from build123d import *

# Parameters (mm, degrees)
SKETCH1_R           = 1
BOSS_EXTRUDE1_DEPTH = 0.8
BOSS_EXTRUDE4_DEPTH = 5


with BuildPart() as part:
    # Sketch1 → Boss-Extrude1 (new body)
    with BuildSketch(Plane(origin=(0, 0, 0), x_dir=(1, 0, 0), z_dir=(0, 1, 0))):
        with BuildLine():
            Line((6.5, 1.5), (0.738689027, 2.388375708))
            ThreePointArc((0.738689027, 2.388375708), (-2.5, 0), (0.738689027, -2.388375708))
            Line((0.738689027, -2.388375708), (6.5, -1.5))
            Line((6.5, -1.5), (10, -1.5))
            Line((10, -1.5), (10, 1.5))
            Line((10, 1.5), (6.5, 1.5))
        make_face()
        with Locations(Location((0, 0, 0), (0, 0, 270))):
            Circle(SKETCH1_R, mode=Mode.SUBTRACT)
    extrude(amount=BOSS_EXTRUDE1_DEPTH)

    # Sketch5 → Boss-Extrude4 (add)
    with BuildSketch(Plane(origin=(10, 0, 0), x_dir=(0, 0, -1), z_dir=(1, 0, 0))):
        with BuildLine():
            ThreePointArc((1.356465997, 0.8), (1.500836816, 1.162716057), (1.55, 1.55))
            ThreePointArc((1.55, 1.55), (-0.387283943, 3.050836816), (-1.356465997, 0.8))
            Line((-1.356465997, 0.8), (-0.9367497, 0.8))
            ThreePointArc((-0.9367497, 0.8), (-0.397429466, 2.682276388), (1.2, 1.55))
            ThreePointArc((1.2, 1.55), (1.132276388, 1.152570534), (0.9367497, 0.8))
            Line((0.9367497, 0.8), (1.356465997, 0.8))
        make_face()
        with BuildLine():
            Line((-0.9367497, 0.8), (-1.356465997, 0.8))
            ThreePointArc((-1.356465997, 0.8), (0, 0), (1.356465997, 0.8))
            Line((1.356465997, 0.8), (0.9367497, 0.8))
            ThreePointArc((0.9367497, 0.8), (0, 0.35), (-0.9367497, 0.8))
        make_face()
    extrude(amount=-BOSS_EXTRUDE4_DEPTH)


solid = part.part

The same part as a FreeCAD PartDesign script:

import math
import FreeCAD as App
import Part
import Sketcher
from FreeCAD import Vector
Q = App.Units.Quantity

doc = App.newDocument("Part")
body = doc.addObject("PartDesign::Body", "Body")

# Sketch on XZ plane
sketch1 = body.newObject("Sketcher::SketchObject", "Sketch")
sketch1.AttachmentSupport = (doc.getObject("XZ_Plane"), [""])
sketch1.MapMode = "FlatFace"
sketch1.addGeometry([
    Part.LineSegment(Vector(6.5, -1.5, 0), Vector(0.7, -2.4, 0)),  # 0
    Part.ArcOfCircle(Part.Circle(Vector(0, 0, 0), Vector(0, 0, 1), 2.5), math.radians(73), math.radians(287)),  # 1
    Part.LineSegment(Vector(0.7, 2.4, 0), Vector(6.5, 1.5, 0)),  # 2
    Part.LineSegment(Vector(6.5, 1.5, 0), Vector(10, 1.5, 0)),  # 3
    Part.LineSegment(Vector(10, 1.5, 0), Vector(10, -1.5, 0)),  # 4
    Part.LineSegment(Vector(10, -1.5, 0), Vector(6.5, -1.5, 0)),  # 5
    Part.Circle(Vector(0, 0, 0), Vector(0, 0, 1), 1),  # 6
], False)
sketch1.addConstraint([
    Sketcher.Constraint("Coincident", 0, 2, 1, 2),
    Sketcher.Constraint("Coincident", 1, 1, 2, 1),
    Sketcher.Constraint("Coincident", 2, 2, 3, 1),
    Sketcher.Constraint("Coincident", 3, 2, 4, 1),
    Sketcher.Constraint("Coincident", 4, 2, 5, 1),
    Sketcher.Constraint("Coincident", 5, 2, 0, 1),
    Sketcher.Constraint("Horizontal", 3),
    Sketcher.Constraint("Vertical", 4),
    Sketcher.Constraint("Horizontal", 5),
    Sketcher.Constraint("Coincident", 1, 3, -1, 1),
    Sketcher.Constraint("Coincident", 6, 3, -1, 1),
    Sketcher.Constraint("Symmetric", 2, 2, 5, 2, -1),
    Sketcher.Constraint("Vertical", 0, 2, 1, 1),
    Sketcher.Constraint("Diameter", 6, Q("2 mm")),
    Sketcher.Constraint("Radius", 1, Q("2.5 mm")),
    Sketcher.Constraint("DistanceY", 4, 2, 4, 1, Q("3 mm")),
    Sketcher.Constraint("DistanceX", 3, 1, 3, 2, Q("3.5 mm")),
    Sketcher.Constraint("DistanceX", -1, 1, 3, 2, Q("10 mm")),
    Sketcher.Constraint("Distance", 0, Q("5.829401 mm")),
])
pad1 = body.newObject("PartDesign::Pad", "Pad")
pad1.Profile = sketch1
pad1.Length = 0.8
pad1.Reversed = True

# Sketch on YZ plane
sketch2 = body.newObject("Sketcher::SketchObject", "Sketch001")
sketch2.AttachmentSupport = (doc.getObject("YZ_Plane"), [""])
sketch2.MapMode = "FlatFace"
sketch2.AttachmentOffset = App.Placement(Vector(0, 0, 10), App.Rotation())
sketch2.addGeometry([
    Part.ArcOfCircle(Part.Circle(Vector(1.5, 0, 0), Vector(0, 0, 1), 1.5), math.radians(-119), math.radians(-90)),  # 0
    Part.ArcOfCircle(Part.Circle(Vector(1.6, 0, 0), Vector(0, 0, 1), 1.6), math.radians(-90), math.radians(119)),  # 1
    Part.ArcOfCircle(Part.Circle(Vector(1.6, 0, 0), Vector(0, 0, 1), 1.6), math.radians(119), math.radians(241)),  # 2
    Part.ArcOfCircle(Part.Circle(Vector(1.6, 0, 0), Vector(0, 0, 1), 1.2), math.radians(-90), math.radians(129)),  # 3
    Part.ArcOfCircle(Part.Circle(Vector(1.6, 0, 0), Vector(0, 0, 1), 1.2), math.radians(-129), math.radians(-90)),  # 4
    Part.ArcOfCircle(Part.Circle(Vector(1.6, 0, 0), Vector(0, 0, 1), 1.2), math.radians(129), math.radians(231)),  # 5
], False)
sketch2.addConstraint([
    Sketcher.Constraint("Tangent", 0, 2, 1, 1),
    Sketcher.Constraint("Tangent", 1, 2, 2, 1),
    Sketcher.Constraint("Tangent", 2, 2, 0, 1),
    Sketcher.Constraint("Tangent", 3, 1, 4, 2),
    Sketcher.Constraint("Tangent", 4, 1, 5, 2),
    Sketcher.Constraint("Tangent", 5, 1, 3, 2),
    Sketcher.Constraint("Coincident", 3, 3, 0, 3),
    Sketcher.Constraint("Symmetric", 1, 2, 2, 2, -1),
    Sketcher.Constraint("Vertical", 5, 3, 0, 2),
    Sketcher.Constraint("Vertical", 0, 2, 3, 1),
    Sketcher.Constraint("Vertical", 2, 2, 4, 1),
    Sketcher.Constraint("Vertical", 4, 1, 5, 1),
    Sketcher.Constraint("Radius", 3, Q("1.2 mm")),
    Sketcher.Constraint("Radius", 0, Q("1.55 mm")),
    Sketcher.Constraint("DistanceX", -1, 1, 1, 2, Q("0.8 mm")),
    Sketcher.Constraint("DistanceX", -1, 1, 0, 3, Q("1.55 mm")),
])
pad2 = body.newObject("PartDesign::Pad", "Pad001")
pad2.Profile = sketch2
pad2.Length = 5
pad2.Reversed = True

doc.recompute()
